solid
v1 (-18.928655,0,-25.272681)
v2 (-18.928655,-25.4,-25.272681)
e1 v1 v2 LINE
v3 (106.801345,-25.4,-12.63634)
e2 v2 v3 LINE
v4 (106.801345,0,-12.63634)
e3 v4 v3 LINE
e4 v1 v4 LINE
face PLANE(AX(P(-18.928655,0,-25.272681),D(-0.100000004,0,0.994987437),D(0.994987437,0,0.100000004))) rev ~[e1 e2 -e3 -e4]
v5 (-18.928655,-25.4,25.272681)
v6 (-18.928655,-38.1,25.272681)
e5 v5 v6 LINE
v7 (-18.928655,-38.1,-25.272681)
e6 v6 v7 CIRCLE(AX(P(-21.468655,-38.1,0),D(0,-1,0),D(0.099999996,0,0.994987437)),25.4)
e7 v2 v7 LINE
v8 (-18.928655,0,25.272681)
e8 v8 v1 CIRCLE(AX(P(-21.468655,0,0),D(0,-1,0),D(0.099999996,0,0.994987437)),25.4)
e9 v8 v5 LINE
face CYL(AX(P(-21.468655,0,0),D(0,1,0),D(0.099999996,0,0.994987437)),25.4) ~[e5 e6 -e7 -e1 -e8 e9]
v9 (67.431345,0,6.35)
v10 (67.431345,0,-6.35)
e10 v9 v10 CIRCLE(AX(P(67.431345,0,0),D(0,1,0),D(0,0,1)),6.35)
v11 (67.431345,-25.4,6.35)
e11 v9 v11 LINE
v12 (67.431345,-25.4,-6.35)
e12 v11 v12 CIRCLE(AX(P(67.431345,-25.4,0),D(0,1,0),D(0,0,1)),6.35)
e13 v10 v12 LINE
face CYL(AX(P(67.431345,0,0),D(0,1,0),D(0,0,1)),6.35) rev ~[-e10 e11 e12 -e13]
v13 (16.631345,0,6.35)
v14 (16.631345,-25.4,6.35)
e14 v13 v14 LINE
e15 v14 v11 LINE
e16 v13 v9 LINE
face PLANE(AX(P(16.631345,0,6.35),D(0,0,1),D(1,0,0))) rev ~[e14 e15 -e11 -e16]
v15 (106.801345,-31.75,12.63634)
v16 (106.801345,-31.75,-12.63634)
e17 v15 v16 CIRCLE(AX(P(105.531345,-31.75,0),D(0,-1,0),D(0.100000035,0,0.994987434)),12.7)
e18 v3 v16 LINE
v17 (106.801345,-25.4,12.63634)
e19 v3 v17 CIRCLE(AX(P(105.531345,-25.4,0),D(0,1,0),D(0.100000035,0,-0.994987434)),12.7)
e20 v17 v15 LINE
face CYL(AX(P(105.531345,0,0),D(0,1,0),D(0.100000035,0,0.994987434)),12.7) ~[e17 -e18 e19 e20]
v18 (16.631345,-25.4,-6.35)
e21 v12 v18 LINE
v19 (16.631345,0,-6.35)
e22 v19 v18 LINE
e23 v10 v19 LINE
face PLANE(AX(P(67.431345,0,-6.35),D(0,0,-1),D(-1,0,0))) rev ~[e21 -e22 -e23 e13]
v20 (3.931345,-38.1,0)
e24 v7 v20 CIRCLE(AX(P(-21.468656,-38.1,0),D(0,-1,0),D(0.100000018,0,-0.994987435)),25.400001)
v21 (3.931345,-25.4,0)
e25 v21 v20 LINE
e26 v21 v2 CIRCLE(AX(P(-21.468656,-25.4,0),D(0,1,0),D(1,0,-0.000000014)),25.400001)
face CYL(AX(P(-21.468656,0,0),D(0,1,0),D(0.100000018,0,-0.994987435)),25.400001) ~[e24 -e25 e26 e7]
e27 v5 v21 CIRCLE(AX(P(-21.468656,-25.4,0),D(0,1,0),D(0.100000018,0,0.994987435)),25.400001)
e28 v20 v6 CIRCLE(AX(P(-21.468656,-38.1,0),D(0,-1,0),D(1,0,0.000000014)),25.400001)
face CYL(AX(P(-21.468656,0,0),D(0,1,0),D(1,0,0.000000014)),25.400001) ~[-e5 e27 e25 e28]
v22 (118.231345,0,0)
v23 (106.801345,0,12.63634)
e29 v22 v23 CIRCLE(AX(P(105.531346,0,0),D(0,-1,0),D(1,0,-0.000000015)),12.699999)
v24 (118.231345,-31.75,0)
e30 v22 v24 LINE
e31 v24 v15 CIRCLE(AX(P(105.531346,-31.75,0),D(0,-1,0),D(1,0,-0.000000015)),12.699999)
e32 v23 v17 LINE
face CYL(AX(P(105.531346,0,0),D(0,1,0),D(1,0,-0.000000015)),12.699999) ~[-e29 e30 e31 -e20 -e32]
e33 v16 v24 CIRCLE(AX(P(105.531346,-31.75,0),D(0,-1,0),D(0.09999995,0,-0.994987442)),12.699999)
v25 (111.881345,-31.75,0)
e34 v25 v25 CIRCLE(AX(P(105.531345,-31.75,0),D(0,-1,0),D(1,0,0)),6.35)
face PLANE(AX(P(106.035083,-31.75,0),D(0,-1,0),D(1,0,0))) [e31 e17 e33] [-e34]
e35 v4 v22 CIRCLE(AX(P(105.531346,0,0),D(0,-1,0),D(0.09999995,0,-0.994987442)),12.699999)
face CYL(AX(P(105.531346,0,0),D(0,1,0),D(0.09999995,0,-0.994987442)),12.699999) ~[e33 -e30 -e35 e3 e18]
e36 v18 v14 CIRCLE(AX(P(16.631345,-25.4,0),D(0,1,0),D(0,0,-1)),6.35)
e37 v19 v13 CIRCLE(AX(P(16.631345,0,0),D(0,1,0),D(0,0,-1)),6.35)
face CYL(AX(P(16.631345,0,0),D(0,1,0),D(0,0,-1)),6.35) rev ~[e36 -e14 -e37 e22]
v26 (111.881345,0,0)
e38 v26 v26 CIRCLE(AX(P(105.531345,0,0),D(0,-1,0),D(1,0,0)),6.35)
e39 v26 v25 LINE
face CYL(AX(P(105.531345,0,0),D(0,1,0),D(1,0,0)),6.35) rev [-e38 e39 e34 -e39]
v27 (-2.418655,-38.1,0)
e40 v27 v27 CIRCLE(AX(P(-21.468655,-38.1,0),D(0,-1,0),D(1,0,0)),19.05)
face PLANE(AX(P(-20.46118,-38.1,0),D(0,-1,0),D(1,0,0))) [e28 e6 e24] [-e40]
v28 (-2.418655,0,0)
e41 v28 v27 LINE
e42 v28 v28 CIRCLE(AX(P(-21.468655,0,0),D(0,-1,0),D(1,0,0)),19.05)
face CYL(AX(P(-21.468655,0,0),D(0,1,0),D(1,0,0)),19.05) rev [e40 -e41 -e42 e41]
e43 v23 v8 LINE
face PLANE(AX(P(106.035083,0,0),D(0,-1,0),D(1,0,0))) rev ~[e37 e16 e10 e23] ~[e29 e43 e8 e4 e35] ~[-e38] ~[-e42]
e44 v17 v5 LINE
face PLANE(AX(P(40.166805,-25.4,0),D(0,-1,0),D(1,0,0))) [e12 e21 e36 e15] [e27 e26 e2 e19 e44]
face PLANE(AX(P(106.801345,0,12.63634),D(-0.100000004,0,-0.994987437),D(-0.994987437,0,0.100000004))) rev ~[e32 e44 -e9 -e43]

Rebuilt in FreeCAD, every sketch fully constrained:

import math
import FreeCAD as App
import Part
import Sketcher

V = App.Vector
Q = App.Units.Quantity

doc = App.newDocument("Part")
body = doc.addObject("PartDesign::Body", "Body")

sketch1 = body.newObject("Sketcher::SketchObject", "Sketch")
sketch1.AttachmentSupport = (doc.getObject("XZ_Plane"), [""])
sketch1.MapMode = "FlatFace"
sketch1.addGeometry([
    Part.ArcOfCircle(Part.Circle(V(-21.468656, 0, 0), V(0, 0, 1), 25.400001), math.radians(-84.260829), math.radians(-0.000001)),
    Part.ArcOfCircle(Part.Circle(V(-21.468656, 0, 0), V(0, 0, 1), 25.400001), math.radians(0.000001), math.radians(84.260829)),
    Part.ArcOfCircle(Part.Circle(V(-21.468655, 0, 0), V(0, 0, 1), 25.4), math.radians(84.26083), math.radians(275.73917)),
    Part.Circle(V(-21.468655, 0, 0), V(0, 0, 1), 19.05),
], False)
sketch1.addConstraint([
    Sketcher.Constraint("Tangent", 0, 2, 1, 1),
    Sketcher.Constraint("Tangent", 1, 2, 2, 1),
    Sketcher.Constraint("Tangent", 2, 2, 0, 1),
    Sketcher.Constraint("Coincident", 3, 3, 0, 3),
    Sketcher.Constraint("Symmetric", 1, 2, 2, 2, -1),
    Sketcher.Constraint("PointOnObject", 0, 2, -1),
    Sketcher.Constraint("Radius", 0, Q("1 in")),
    Sketcher.Constraint("Diameter", 3, Q("1.5 in")),
    Sketcher.Constraint("DistanceX", 0, 3, 1, 2, Q("0.1 in")),
    Sketcher.Constraint("DistanceX", 0, 3, -1, 1, Q("21.468656 mm")),
])
pad1 = body.newObject("PartDesign::Pad", "Pad")
pad1.Profile = sketch1
pad1.Length = Q("1.5 in")

sketch2 = body.newObject("Sketcher::SketchObject", "Sketch001")
sketch2.AttachmentSupport = (doc.getObject("XZ_Plane"), [""])
sketch2.MapMode = "FlatFace"
sketch2.addGeometry([
    Part.ArcOfCircle(Part.Circle(V(-21.468656, 0, 0), V(0, 0, 1), 25.400001), math.radians(0.000001), math.radians(84.260829)),
    Part.ArcOfCircle(Part.Circle(V(-21.468656, 0, 0), V(0, 0, 1), 25.400001), math.radians(-84.260829), math.radians(-0.000001)),
    Part.LineSegment(V(-18.928655, -25.272681, 0), V(106.801345, -12.63634, 0)),
    Part.ArcOfCircle(Part.Circle(V(105.531345, 0, 0), V(0, 0, 1), 12.7), math.radians(84.260827), math.radians(275.739173)),
    Part.LineSegment(V(106.801345, 12.63634, 0), V(-18.928655, 25.272681, 0)),
    Part.LineSegment(V(16.631345, 6.35, 0), V(67.431345, 6.35, 0)),
    Part.ArcOfCircle(Part.Circle(V(67.431345, 0, 0), V(0, 0, 1), 6.35), math.radians(-90), math.radians(90)),
    Part.LineSegment(V(67.431345, -6.35, 0), V(16.631345, -6.35, 0)),
    Part.ArcOfCircle(Part.Circle(V(16.631345, 0, 0), V(0, 0, 1), 6.35), math.radians(90), math.radians(270)),
], False)
sketch2.addConstraint([
    Sketcher.Constraint("Tangent", 0, 1, 1, 2),
    Sketcher.Constraint("Tangent", 1, 1, 2, 1),
    Sketcher.Constraint("Tangent", 2, 2, 3, 2),
    Sketcher.Constraint("Tangent", 3, 1, 4, 1),
    Sketcher.Constraint("Tangent", 4, 2, 0, 2),
    Sketcher.Constraint("Tangent", 5, 2, 6, 2),
    Sketcher.Constraint("Tangent", 6, 1, 7, 1),
    Sketcher.Constraint("Tangent", 7, 2, 8, 2),
    Sketcher.Constraint("Tangent", 8, 1, 5, 1),
    Sketcher.Constraint("Horizontal", 5),
    Sketcher.Constraint("Horizontal", 7),
    Sketcher.Constraint("Equal", 0, 1),
    Sketcher.Constraint("Symmetric", 2, 2, 3, 1, -1),
    Sketcher.Constraint("PointOnObject", 6, 3, -1),
    Sketcher.Constraint("PointOnObject", 0, 1, -1),
    Sketcher.Constraint("Radius", 0, Q("1 in")),
    Sketcher.Constraint("Radius", 3, Q("0.5 in")),
    Sketcher.Constraint("DistanceX", 5, 1, 5, 2, Q("2 in")),
    Sketcher.Constraint("Radius", 6, Q("0.25 in")),
    Sketcher.Constraint("DistanceX", 0, 3, 3, 3, Q("5 in")),
    Sketcher.Constraint("DistanceX", 6, 3, 3, 3, Q("1.5 in")),
    Sketcher.Constraint("DistanceX", 0, 3, -1, 1, Q("21.468656 mm")),
])
pad2 = body.newObject("PartDesign::Pad", "Pad001")
pad2.Profile = sketch2
pad2.Length = Q("1 in")

sketch3 = body.newObject("Sketcher::SketchObject", "Sketch002")
sketch3.AttachmentSupport = (doc.getObject("XZ_Plane"), [""])
sketch3.MapMode = "FlatFace"
sketch3.addGeometry([
    Part.ArcOfCircle(Part.Circle(V(105.531346, 0, 0), V(0, 0, 1), 12.699999), math.radians(-0.000001), math.radians(84.260832)),
    Part.ArcOfCircle(Part.Circle(V(105.531345, 0, 0), V(0, 0, 1), 12.7), math.radians(84.260827), math.radians(275.739173)),
    Part.ArcOfCircle(Part.Circle(V(105.531346, 0, 0), V(0, 0, 1), 12.699999), math.radians(-84.260832), math.radians(0.000001)),
    Part.Circle(V(105.531345, 0, 0), V(0, 0, 1), 6.35),
], False)
sketch3.addConstraint([
    Sketcher.Constraint("Tangent", 0, 2, 1, 1),
    Sketcher.Constraint("Tangent", 1, 2, 2, 1),
    Sketcher.Constraint("Tangent", 2, 2, 0, 1),
    Sketcher.Constraint("Coincident", 3, 3, 0, 3),
    Sketcher.Constraint("Symmetric", 0, 2, 1, 2, -1),
    Sketcher.Constraint("PointOnObject", 2, 2, -1),
    Sketcher.Constraint("Diameter", 3, Q("0.5 in")),
    Sketcher.Constraint("Radius", 0, Q("0.5 in")),
    Sketcher.Constraint("DistanceX", 0, 3, 0, 2, Q("0.05 in")),
    Sketcher.Constraint("DistanceX", -1, 1, 0, 3, Q("105.531346 mm")),
])
pad3 = body.newObject("PartDesign::Pad", "Pad002")
pad3.Profile = sketch3
pad3.Length = Q("1.25 in")

doc.recompute()
